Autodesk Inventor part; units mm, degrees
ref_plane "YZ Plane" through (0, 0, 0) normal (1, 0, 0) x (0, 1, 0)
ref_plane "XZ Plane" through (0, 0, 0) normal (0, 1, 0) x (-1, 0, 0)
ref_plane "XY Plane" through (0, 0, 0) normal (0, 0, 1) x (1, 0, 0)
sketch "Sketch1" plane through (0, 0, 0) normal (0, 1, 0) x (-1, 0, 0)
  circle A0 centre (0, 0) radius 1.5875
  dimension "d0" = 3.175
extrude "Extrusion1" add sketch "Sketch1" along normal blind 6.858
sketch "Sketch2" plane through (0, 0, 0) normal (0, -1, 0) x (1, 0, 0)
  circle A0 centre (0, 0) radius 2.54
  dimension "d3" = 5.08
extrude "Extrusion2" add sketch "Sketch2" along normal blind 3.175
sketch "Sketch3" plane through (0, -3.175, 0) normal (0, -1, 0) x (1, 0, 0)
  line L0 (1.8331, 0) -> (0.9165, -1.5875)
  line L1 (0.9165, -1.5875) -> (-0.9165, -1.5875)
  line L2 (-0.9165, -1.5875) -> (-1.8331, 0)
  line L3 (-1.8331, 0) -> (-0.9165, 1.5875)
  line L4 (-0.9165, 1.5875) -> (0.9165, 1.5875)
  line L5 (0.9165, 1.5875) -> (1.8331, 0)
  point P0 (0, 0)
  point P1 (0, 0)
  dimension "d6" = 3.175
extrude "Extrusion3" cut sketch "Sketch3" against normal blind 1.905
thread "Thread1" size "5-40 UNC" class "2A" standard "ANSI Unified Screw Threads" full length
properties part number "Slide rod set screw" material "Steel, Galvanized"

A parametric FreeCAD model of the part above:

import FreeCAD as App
import Part
import Sketcher

V = App.Vector
Q = App.Units.Quantity

doc = App.newDocument("Part")
body = doc.addObject("PartDesign::Body", "Body")

# Sketch on XZ plane
sketch1 = doc.addObject("Sketcher::SketchObject", "Sketch")
body.addObject(sketch1)
sketch1.AttachmentSupport = (doc.XZ_Plane, [""])
sketch1.MapMode = "FlatFace"
sketch1.addGeometry(Part.Circle(V(0, 0, 0), V(0, 0, 1), 1.5875), False)
sketch1.addConstraint(Sketcher.Constraint("Coincident", 0, 3, -1, 1))
sketch1.addConstraint(Sketcher.Constraint("Diameter", 0, Q("0.125 in")))
pad1 = doc.addObject("PartDesign::Pad", "Pad")
body.addObject(pad1)
pad1.Profile = sketch1
pad1.Length = Q("0.27 in")
pad1.Reversed = True

# Sketch on XZ plane
sketch2 = doc.addObject("Sketcher::SketchObject", "Sketch001")
body.addObject(sketch2)
sketch2.AttachmentSupport = (doc.XZ_Plane, [""])
sketch2.MapMode = "FlatFace"
sketch2.addGeometry(Part.Circle(V(0, 0, 0), V(0, 0, 1), 2.54), False)
sketch2.addConstraint(Sketcher.Constraint("Coincident", 0, 3, -1, 1))
sketch2.addConstraint(Sketcher.Constraint("Diameter", 0, Q("0.2 in")))
pad2 = doc.addObject("PartDesign::Pad", "Pad001")
body.addObject(pad2)
pad2.Profile = sketch2
pad2.Length = Q("0.125 in")

# Sketch on XZ plane
sketch3 = doc.addObject("Sketcher::SketchObject", "Sketch002")
body.addObject(sketch3)
sketch3.AttachmentSupport = (doc.XZ_Plane, [""])
sketch3.MapMode = "FlatFace"
sketch3.AttachmentOffset = App.Placement(V(0, 0, 0.125 * 25.4), App.Rotation())
sketch3.addGeometry(Part.LineSegment(V(0.9165, -1.5875, 0), V(1.8331, 0, 0)), False)
sketch3.addGeometry(Part.LineSegment(V(1.8331, 0, 0), V(0.9165, 1.5875, 0)), False)
sketch3.addGeometry(Part.LineSegment(V(0.9165, 1.5875, 0), V(-0.9165, 1.5875, 0)), False)
sketch3.addGeometry(Part.LineSegment(V(-0.9165, 1.5875, 0), V(-1.8331, 0, 0)), False)
sketch3.addGeometry(Part.LineSegment(V(-1.8331, 0, 0), V(-0.9165, -1.5875, 0)), False)
sketch3.addGeometry(Part.LineSegment(V(-0.9165, -1.5875, 0), V(0.9165, -1.5875, 0)), False)
sketch3.addConstraint(Sketcher.Constraint("Coincident", 0, 2, 1, 1))
sketch3.addConstraint(Sketcher.Constraint("Coincident", 1, 2, 2, 1))
sketch3.addConstraint(Sketcher.Constraint("Coincident", 2, 2, 3, 1))
sketch3.addConstraint(Sketcher.Constraint("Coincident", 3, 2, 4, 1))
sketch3.addConstraint(Sketcher.Constraint("Coincident", 4, 2, 5, 1))
sketch3.addConstraint(Sketcher.Constraint("Coincident", 5, 2, 0, 1))
sketch3.addConstraint(Sketcher.Constraint("Horizontal", 2))
sketch3.addConstraint(Sketcher.Constraint("Horizontal", 5))
sketch3.addConstraint(Sketcher.Constraint("Symmetric", 0, 2, 3, 2, -1, 1))
sketch3.addConstraint(Sketcher.Constraint("Symmetric", 1, 2, 4, 2, -1, 1))
sketch3.addConstraint(Sketcher.Constraint("PointOnObject", 0, 2, -1))
sketch3.addConstraint(Sketcher.Constraint("Parallel", 0, 3))
sketch3.addConstraint(Sketcher.Constraint("Vertical", 2, 2, 4, 2))
sketch3.addConstraint(Sketcher.Constraint("DistanceY", 4, 2, 2, 2, Q("0.125 in")))
sketch3.addConstraint(Sketcher.Constraint("DistanceX", 2, 2, 2, 1, 1.833))
sketch3.addConstraint(Sketcher.Constraint("Distance", 0, 1.833))
pocket1 = doc.addObject("PartDesign::Pocket", "Pocket")
body.addObject(pocket1)
pocket1.Profile = sketch3
pocket1.Length = Q("0.075 in")

doc.recompute()
